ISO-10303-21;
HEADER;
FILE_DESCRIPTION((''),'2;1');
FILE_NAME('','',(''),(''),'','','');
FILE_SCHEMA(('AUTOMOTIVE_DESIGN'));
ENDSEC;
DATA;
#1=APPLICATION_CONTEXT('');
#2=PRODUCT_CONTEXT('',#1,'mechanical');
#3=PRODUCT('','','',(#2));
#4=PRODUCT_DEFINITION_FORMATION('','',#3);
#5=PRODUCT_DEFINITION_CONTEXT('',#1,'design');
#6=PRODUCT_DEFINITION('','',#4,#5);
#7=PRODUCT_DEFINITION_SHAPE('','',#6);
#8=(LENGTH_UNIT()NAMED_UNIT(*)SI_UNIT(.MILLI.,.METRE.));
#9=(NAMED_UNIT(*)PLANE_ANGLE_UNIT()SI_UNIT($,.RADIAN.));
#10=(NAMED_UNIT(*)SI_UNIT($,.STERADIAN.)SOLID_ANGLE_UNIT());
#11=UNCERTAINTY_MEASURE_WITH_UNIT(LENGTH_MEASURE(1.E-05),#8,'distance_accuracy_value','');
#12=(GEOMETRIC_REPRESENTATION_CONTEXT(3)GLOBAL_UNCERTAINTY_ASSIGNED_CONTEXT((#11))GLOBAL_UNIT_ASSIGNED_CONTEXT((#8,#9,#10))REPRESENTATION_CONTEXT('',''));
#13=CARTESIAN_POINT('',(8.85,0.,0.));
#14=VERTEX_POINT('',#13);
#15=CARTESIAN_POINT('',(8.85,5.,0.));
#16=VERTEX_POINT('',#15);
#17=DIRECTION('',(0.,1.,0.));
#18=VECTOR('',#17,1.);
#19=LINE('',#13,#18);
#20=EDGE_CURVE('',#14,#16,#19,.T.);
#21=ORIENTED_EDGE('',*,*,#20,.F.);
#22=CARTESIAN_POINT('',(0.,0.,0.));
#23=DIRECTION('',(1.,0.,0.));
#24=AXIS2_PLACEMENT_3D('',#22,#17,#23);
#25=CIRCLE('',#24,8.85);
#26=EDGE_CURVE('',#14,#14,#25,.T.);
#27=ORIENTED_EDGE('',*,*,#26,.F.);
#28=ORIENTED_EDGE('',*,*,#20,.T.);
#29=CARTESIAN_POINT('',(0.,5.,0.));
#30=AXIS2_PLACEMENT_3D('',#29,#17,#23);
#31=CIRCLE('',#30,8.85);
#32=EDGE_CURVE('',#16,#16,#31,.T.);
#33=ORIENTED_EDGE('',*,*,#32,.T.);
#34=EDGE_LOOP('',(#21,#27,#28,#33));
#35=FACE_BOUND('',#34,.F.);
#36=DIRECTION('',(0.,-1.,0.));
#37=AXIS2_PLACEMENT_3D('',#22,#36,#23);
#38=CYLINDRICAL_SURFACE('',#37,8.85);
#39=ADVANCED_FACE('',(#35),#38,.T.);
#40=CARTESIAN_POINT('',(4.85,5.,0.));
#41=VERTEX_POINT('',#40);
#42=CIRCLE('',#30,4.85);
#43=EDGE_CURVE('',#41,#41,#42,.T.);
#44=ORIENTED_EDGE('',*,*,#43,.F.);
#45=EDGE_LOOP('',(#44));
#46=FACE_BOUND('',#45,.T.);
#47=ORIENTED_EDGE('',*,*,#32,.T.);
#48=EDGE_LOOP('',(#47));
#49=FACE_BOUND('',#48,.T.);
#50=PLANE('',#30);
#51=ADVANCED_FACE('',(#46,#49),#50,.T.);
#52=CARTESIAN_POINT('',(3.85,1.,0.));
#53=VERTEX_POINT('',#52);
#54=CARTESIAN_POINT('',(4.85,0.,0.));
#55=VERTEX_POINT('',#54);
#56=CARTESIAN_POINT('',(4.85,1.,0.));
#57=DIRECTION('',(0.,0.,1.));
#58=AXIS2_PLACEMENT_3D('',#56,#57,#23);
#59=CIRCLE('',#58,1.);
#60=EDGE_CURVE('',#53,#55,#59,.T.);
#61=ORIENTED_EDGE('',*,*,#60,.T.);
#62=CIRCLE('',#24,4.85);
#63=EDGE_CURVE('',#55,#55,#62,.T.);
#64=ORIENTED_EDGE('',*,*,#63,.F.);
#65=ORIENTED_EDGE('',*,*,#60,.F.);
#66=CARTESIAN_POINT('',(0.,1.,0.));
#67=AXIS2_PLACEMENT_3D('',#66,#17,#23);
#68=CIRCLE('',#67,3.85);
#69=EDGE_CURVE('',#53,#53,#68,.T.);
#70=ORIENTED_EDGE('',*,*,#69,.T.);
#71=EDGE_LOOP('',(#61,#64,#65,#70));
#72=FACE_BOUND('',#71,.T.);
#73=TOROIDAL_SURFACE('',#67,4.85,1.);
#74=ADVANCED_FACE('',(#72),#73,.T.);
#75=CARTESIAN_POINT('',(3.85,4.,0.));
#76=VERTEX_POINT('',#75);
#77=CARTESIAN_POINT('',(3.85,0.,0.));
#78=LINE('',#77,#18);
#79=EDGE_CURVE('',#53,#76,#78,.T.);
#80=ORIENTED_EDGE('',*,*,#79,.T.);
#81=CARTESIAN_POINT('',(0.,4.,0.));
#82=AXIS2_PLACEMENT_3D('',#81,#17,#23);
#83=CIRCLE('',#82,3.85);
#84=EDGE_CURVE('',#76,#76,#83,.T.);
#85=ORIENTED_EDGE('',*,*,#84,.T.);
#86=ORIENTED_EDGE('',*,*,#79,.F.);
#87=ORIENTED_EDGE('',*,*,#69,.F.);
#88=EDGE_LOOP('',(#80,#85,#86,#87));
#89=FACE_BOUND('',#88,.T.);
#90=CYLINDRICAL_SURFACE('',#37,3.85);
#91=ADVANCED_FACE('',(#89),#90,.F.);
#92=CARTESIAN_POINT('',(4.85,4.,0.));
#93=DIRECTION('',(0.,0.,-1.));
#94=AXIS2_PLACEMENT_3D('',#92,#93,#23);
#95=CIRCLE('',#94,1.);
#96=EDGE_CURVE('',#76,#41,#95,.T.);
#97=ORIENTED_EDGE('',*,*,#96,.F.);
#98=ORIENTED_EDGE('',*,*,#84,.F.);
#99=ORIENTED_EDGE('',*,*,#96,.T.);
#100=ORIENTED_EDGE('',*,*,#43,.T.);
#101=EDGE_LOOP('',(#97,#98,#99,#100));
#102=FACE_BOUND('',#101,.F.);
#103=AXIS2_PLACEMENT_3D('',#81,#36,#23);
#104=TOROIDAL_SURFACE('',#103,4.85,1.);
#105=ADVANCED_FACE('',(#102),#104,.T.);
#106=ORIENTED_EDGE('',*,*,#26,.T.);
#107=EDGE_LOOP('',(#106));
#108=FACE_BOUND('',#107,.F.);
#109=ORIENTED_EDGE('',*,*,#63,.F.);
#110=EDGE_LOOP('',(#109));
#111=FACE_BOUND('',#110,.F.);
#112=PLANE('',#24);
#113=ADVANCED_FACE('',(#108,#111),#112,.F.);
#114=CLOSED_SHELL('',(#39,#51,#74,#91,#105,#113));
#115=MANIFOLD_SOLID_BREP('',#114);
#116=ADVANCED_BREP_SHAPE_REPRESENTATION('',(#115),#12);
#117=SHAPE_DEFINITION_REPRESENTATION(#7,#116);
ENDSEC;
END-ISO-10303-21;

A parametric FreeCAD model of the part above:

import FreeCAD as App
import Part
import Sketcher
from FreeCAD import Vector


def edges_at(feature, points):
    """Names of the edges that pass closest to the given points."""
    edges = feature.Shape.Edges
    near = lambda p: min(range(len(edges)), key=lambda i: edges[i].distToShape(Part.Vertex(*p))[0])
    return sorted({f"Edge{near(p) + 1}" for p in points})

doc = App.newDocument("Part")
body = doc.addObject("PartDesign::Body", "Body")

# Sketch on XZ plane
sketch1 = doc.addObject("Sketcher::SketchObject", "Sketch")
body.addObject(sketch1)
sketch1.AttachmentSupport = (doc.XZ_Plane, [""])
sketch1.MapMode = "FlatFace"
sketch1.addGeometry(Part.Circle(Vector(0, 0, 0), Vector(0, 0, 1), 8.8), False)
sketch1.addGeometry(Part.Circle(Vector(0, 0, 0), Vector(0, 0, 1), 3.9), False)
sketch1.addConstraint(Sketcher.Constraint("Coincident", 0, 3, -1, 1))
sketch1.addConstraint(Sketcher.Constraint("Coincident", 1, 3, -1, 1))
sketch1.addConstraint(Sketcher.Constraint("Diameter", 0, 17.7))
sketch1.addConstraint(Sketcher.Constraint("Diameter", 1, 7.7))
pad1 = doc.addObject("PartDesign::Pad", "Pad")
body.addObject(pad1)
pad1.Profile = sketch1
pad1.Length = 5
pad1.Reversed = True
doc.recompute()

fillet = doc.addObject("PartDesign::Fillet", "Fillet")
body.addObject(fillet)
fillet.Base = (pad1, edges_at(pad1, [(-3.85, 0, 0), (-3.85, 5, 0)]))
fillet.Radius = 1

doc.recompute()
